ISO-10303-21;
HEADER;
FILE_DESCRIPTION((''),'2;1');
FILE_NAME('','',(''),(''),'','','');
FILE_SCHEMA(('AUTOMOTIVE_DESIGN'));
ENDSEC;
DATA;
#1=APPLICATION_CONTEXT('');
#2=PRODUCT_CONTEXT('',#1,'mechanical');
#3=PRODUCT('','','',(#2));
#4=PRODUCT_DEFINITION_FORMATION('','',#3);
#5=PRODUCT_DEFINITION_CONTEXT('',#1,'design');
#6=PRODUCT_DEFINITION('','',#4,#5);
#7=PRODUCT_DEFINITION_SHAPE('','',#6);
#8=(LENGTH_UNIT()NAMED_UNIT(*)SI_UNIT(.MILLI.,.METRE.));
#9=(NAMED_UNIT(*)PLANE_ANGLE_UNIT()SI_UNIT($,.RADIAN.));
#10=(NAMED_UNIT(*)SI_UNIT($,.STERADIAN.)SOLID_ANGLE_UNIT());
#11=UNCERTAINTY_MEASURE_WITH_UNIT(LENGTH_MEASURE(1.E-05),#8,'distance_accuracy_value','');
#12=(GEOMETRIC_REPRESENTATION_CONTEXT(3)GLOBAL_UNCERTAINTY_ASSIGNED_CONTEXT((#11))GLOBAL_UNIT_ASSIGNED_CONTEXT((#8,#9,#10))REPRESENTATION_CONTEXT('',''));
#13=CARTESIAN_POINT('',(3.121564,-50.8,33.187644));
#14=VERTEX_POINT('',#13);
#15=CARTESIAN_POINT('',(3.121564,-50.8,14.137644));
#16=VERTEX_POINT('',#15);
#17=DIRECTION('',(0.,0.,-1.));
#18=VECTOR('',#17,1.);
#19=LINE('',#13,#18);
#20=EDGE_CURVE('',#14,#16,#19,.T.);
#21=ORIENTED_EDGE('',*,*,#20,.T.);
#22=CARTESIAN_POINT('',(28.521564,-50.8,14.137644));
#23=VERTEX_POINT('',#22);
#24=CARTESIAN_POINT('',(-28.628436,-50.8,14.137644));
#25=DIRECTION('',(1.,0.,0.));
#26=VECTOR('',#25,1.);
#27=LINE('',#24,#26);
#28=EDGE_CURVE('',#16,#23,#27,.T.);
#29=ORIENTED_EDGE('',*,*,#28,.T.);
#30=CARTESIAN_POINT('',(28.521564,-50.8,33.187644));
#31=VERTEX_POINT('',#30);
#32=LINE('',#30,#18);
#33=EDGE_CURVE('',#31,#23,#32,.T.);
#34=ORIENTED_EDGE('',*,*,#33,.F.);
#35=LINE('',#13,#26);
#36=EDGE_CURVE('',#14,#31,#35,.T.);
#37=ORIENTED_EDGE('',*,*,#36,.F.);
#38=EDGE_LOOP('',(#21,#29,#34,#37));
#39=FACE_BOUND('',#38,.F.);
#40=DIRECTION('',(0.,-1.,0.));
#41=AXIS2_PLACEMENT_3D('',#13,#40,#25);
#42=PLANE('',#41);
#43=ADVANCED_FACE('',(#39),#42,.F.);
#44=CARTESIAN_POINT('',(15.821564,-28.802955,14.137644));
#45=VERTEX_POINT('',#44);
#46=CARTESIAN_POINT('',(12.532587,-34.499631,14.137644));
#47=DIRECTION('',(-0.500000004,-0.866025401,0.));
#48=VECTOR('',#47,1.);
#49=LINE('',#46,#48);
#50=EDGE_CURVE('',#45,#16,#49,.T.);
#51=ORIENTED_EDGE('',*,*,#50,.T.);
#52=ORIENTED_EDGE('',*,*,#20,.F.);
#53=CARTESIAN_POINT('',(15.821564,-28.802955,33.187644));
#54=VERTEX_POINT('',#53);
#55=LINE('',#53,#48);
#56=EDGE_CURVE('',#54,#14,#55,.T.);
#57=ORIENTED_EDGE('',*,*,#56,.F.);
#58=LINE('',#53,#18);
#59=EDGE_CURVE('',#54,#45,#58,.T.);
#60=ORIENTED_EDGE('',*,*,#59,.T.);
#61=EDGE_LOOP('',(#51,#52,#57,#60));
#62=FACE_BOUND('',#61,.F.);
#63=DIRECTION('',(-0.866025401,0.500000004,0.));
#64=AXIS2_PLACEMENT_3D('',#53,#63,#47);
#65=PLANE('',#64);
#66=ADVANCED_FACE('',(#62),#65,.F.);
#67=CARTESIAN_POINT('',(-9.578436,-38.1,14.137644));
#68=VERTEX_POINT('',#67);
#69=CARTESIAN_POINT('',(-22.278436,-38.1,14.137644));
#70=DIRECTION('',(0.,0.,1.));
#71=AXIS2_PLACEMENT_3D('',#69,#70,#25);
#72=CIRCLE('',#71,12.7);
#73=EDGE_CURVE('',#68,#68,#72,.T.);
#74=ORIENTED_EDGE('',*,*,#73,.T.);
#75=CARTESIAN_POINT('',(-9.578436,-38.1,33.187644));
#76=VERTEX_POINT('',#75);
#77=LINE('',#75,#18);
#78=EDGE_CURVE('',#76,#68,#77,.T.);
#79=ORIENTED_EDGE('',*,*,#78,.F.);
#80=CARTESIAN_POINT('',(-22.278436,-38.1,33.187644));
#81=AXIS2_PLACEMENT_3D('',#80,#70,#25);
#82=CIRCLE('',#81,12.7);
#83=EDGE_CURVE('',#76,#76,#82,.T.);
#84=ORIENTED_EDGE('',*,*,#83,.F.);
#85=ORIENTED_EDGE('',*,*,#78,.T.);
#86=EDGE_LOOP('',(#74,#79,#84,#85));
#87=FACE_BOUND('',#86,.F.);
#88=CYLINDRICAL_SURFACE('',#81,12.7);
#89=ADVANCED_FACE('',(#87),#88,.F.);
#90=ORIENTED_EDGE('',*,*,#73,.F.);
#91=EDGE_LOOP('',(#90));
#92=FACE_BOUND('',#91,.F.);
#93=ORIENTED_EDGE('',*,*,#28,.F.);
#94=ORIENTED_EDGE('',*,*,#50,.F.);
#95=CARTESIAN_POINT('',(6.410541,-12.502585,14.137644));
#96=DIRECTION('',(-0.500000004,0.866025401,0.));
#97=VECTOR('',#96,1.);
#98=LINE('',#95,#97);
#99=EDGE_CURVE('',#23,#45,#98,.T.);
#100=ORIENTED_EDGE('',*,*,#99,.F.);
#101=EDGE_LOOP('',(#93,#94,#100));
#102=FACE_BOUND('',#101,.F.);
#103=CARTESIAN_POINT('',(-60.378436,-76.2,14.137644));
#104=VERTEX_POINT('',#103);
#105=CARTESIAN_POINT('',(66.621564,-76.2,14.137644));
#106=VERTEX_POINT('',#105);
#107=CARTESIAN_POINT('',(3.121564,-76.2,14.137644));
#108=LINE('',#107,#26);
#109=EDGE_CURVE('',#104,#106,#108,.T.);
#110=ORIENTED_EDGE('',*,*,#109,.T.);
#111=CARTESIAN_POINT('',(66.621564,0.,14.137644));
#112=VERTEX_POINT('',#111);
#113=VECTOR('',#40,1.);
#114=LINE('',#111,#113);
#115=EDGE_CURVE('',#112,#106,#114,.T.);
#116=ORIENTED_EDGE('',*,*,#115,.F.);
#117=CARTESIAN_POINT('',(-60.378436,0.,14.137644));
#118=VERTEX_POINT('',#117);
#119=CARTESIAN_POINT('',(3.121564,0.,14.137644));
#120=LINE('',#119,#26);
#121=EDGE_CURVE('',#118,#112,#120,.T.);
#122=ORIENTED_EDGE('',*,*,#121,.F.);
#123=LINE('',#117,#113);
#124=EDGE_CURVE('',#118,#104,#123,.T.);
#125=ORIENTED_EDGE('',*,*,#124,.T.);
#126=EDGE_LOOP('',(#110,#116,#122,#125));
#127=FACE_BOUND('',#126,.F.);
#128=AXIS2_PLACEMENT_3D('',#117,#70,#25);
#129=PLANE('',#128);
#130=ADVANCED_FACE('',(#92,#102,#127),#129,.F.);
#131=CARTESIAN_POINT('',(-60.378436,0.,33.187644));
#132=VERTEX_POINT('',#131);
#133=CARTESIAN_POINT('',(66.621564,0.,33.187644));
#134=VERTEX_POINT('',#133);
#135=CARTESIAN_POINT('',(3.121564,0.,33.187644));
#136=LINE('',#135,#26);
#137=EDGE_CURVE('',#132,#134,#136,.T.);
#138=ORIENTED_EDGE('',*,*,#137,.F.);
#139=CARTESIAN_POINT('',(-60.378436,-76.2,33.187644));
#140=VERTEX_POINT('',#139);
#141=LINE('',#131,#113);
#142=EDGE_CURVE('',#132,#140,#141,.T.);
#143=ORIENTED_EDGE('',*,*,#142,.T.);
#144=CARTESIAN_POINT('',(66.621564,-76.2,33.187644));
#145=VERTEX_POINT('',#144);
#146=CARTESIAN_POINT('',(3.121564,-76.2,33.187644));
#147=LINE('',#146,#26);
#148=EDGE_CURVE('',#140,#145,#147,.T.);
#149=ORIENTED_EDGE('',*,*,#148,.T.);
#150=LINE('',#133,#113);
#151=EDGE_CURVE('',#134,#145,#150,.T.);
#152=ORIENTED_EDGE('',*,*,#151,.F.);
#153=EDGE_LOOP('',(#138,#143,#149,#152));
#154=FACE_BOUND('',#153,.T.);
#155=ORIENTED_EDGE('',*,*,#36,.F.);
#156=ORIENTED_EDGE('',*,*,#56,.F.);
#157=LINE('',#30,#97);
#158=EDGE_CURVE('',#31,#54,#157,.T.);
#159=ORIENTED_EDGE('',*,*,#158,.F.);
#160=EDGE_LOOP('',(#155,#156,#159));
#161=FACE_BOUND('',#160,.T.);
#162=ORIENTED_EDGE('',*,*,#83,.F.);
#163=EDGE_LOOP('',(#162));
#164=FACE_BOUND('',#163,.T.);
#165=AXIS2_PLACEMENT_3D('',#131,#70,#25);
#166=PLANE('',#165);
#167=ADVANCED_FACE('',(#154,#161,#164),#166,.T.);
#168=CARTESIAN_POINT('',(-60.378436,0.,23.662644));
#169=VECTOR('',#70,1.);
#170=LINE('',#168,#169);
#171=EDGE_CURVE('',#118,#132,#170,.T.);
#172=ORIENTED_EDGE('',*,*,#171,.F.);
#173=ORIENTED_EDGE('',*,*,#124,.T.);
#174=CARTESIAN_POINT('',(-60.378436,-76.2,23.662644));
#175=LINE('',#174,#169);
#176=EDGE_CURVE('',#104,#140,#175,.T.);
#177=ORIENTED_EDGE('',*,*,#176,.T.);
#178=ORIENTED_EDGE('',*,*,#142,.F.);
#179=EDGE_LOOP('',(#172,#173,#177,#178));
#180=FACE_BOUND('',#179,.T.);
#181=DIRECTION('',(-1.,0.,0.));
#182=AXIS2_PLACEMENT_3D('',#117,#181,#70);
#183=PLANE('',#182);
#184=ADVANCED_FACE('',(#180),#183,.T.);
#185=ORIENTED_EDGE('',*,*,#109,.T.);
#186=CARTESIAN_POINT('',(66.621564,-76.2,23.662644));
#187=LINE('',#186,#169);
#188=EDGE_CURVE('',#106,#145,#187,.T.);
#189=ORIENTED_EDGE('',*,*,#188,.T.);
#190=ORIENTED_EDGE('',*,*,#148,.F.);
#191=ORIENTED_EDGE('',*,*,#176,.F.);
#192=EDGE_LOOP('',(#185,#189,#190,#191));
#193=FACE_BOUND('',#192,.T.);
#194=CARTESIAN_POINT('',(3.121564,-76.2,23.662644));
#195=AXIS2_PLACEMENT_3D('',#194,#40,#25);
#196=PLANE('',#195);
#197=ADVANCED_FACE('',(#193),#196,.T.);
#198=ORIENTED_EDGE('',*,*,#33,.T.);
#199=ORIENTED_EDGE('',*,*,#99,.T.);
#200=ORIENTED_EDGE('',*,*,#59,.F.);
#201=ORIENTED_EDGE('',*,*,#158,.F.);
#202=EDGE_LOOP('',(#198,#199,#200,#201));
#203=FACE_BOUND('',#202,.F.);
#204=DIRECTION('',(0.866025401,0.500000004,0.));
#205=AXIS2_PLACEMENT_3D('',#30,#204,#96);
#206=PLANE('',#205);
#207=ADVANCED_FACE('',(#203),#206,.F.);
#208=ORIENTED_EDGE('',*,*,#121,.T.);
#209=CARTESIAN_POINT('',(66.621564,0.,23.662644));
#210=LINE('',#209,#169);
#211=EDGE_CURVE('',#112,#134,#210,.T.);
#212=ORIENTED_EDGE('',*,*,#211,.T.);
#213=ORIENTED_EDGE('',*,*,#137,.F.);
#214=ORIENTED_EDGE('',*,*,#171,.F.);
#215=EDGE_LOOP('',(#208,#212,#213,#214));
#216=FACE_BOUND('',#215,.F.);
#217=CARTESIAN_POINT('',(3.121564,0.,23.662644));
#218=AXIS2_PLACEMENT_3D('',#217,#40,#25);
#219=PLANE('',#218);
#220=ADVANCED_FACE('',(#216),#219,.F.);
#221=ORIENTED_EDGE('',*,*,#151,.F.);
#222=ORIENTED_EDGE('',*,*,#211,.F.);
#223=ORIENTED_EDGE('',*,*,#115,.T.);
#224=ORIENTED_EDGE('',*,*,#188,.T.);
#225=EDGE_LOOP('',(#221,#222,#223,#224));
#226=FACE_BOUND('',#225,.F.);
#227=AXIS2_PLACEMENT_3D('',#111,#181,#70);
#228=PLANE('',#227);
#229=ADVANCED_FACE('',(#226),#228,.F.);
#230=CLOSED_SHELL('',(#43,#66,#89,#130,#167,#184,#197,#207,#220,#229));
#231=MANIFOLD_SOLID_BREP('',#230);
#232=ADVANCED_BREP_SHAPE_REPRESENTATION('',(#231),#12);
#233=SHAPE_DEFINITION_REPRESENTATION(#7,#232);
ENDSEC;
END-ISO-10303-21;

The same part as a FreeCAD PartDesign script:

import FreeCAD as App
import Part
import Sketcher

V = App.Vector
Q = App.Units.Quantity


def add_polygon(sketch, points):
    """Adds a closed chain of lines whose ends are joined by coincident constraints."""
    first, n = sketch.GeometryCount, len(points)
    for a, b in zip(points, points[1:] + points[:1]):
        sketch.addGeometry(Part.LineSegment(App.Vector(*a, 0), App.Vector(*b, 0)), False)
    for i in range(n):
        sketch.addConstraint(Sketcher.Constraint("Coincident", first + i, 2, first + (i + 1) % n, 1))

doc = App.newDocument("Part")
params = doc.addObject("Spreadsheet::Sheet", "Params")
for row, (alias, value) in enumerate([
    ("sketch1_width", "5 in"),
    ("sketch1_height", "0.75 in"),
    ("pad1_length", "3 in"),
    ("sketch2_diameter", "1 in"),
    ("pocket1_length", "1 in"),
    ("sketch3_width", "1 in"),
    ("sketch3_length", "1 in"),
    ("pocket2_length", "1 in"),
], start=1):
    params.set(f"A{row}", alias)
    params.set(f"B{row}", "=" + value)
    params.setAlias(f"B{row}", alias)

body = doc.addObject("PartDesign::Body", "Body")

# Sketch on XZ plane
sketch1 = body.newObject("Sketcher::SketchObject", "Sketch")
sketch1.AttachmentSupport = (doc.getObject("XZ_Plane"), [""])
sketch1.MapMode = "FlatFace"
add_polygon(sketch1, [(-60, 33), (-60, 14), (67, 14), (67, 33)])  # lines 0-3
sketch1.addConstraint([
    Sketcher.Constraint("Vertical", 0),
    Sketcher.Constraint("Horizontal", 1),
    Sketcher.Constraint("Vertical", 2),
    Sketcher.Constraint("Horizontal", 3),
    Sketcher.Constraint("DistanceX", 1, 1, 1, 2, Q("5 in")),
    Sketcher.Constraint("DistanceY", 0, 2, 0, 1, Q("0.75 in")),
    Sketcher.Constraint("DistanceY", -1, 1, 0, 2, Q("0.5566002 in")),
    Sketcher.Constraint("DistanceX", 0, 2, -1, 1, 60.378436),
])
sketch1.setExpression("Constraints[8]", "Params.sketch1_width")
sketch1.setExpression("Constraints[9]", "Params.sketch1_height")
pad1 = body.newObject("PartDesign::Pad", "Pad")
pad1.Profile = sketch1
pad1.setExpression("Length", "Params.pad1_length")

# Sketch on XY plane
sketch2 = body.newObject("Sketcher::SketchObject", "Sketch001")
sketch2.AttachmentSupport = (doc.getObject("XY_Plane"), [""])
sketch2.MapMode = "FlatFace"
sketch2.AttachmentOffset = App.Placement(V(0, 0, 1.3066002 * 25.4), App.Rotation())
sketch2.addGeometry(Part.Circle(V(-22, -38, 0), V(0, 0, 1), 13), False)
sketch2.addConstraint([
    Sketcher.Constraint("Diameter", 0, Q("1 in")),
    Sketcher.Constraint("DistanceY", 0, 3, -1, 1, Q("1.5 in")),
    Sketcher.Constraint("DistanceX", 0, 3, -1, 1, 22.278436),
])
sketch2.setExpression("Constraints[0]", "Params.sketch2_diameter")
pocket1 = body.newObject("PartDesign::Pocket", "Pocket")
pocket1.Profile = sketch2
pocket1.setExpression("Length", "Params.pocket1_length")

# Sketch on XY plane
sketch3 = body.newObject("Sketcher::SketchObject", "Sketch002")
sketch3.AttachmentSupport = (doc.getObject("XY_Plane"), [""])
sketch3.MapMode = "FlatFace"
sketch3.AttachmentOffset = App.Placement(V(0, 0, 1.3066002 * 25.4), App.Rotation())
add_polygon(sketch3, [(29, -51), (16, -29), (3, -51)])  # lines 0-2
sketch3.addConstraint([
    Sketcher.Constraint("Horizontal", 2),
    Sketcher.Constraint("Equal", 0, 1),
    Sketcher.Constraint("DistanceX", 2, 1, 2, 2, Q("1 in")),
    Sketcher.Constraint("Distance", 0, Q("1 in")),
    Sketcher.Constraint("DistanceY", 1, 2, -1, 1, Q("2 in")),
    Sketcher.Constraint("DistanceX", -1, 1, 0, 2, 15.821564),
])
sketch3.setExpression("Constraints[5]", "Params.sketch3_width")
sketch3.setExpression("Constraints[6]", "Params.sketch3_length")
pocket2 = body.newObject("PartDesign::Pocket", "Pocket001")
pocket2.Profile = sketch3
pocket2.setExpression("Length", "Params.pocket2_length")

doc.recompute()
